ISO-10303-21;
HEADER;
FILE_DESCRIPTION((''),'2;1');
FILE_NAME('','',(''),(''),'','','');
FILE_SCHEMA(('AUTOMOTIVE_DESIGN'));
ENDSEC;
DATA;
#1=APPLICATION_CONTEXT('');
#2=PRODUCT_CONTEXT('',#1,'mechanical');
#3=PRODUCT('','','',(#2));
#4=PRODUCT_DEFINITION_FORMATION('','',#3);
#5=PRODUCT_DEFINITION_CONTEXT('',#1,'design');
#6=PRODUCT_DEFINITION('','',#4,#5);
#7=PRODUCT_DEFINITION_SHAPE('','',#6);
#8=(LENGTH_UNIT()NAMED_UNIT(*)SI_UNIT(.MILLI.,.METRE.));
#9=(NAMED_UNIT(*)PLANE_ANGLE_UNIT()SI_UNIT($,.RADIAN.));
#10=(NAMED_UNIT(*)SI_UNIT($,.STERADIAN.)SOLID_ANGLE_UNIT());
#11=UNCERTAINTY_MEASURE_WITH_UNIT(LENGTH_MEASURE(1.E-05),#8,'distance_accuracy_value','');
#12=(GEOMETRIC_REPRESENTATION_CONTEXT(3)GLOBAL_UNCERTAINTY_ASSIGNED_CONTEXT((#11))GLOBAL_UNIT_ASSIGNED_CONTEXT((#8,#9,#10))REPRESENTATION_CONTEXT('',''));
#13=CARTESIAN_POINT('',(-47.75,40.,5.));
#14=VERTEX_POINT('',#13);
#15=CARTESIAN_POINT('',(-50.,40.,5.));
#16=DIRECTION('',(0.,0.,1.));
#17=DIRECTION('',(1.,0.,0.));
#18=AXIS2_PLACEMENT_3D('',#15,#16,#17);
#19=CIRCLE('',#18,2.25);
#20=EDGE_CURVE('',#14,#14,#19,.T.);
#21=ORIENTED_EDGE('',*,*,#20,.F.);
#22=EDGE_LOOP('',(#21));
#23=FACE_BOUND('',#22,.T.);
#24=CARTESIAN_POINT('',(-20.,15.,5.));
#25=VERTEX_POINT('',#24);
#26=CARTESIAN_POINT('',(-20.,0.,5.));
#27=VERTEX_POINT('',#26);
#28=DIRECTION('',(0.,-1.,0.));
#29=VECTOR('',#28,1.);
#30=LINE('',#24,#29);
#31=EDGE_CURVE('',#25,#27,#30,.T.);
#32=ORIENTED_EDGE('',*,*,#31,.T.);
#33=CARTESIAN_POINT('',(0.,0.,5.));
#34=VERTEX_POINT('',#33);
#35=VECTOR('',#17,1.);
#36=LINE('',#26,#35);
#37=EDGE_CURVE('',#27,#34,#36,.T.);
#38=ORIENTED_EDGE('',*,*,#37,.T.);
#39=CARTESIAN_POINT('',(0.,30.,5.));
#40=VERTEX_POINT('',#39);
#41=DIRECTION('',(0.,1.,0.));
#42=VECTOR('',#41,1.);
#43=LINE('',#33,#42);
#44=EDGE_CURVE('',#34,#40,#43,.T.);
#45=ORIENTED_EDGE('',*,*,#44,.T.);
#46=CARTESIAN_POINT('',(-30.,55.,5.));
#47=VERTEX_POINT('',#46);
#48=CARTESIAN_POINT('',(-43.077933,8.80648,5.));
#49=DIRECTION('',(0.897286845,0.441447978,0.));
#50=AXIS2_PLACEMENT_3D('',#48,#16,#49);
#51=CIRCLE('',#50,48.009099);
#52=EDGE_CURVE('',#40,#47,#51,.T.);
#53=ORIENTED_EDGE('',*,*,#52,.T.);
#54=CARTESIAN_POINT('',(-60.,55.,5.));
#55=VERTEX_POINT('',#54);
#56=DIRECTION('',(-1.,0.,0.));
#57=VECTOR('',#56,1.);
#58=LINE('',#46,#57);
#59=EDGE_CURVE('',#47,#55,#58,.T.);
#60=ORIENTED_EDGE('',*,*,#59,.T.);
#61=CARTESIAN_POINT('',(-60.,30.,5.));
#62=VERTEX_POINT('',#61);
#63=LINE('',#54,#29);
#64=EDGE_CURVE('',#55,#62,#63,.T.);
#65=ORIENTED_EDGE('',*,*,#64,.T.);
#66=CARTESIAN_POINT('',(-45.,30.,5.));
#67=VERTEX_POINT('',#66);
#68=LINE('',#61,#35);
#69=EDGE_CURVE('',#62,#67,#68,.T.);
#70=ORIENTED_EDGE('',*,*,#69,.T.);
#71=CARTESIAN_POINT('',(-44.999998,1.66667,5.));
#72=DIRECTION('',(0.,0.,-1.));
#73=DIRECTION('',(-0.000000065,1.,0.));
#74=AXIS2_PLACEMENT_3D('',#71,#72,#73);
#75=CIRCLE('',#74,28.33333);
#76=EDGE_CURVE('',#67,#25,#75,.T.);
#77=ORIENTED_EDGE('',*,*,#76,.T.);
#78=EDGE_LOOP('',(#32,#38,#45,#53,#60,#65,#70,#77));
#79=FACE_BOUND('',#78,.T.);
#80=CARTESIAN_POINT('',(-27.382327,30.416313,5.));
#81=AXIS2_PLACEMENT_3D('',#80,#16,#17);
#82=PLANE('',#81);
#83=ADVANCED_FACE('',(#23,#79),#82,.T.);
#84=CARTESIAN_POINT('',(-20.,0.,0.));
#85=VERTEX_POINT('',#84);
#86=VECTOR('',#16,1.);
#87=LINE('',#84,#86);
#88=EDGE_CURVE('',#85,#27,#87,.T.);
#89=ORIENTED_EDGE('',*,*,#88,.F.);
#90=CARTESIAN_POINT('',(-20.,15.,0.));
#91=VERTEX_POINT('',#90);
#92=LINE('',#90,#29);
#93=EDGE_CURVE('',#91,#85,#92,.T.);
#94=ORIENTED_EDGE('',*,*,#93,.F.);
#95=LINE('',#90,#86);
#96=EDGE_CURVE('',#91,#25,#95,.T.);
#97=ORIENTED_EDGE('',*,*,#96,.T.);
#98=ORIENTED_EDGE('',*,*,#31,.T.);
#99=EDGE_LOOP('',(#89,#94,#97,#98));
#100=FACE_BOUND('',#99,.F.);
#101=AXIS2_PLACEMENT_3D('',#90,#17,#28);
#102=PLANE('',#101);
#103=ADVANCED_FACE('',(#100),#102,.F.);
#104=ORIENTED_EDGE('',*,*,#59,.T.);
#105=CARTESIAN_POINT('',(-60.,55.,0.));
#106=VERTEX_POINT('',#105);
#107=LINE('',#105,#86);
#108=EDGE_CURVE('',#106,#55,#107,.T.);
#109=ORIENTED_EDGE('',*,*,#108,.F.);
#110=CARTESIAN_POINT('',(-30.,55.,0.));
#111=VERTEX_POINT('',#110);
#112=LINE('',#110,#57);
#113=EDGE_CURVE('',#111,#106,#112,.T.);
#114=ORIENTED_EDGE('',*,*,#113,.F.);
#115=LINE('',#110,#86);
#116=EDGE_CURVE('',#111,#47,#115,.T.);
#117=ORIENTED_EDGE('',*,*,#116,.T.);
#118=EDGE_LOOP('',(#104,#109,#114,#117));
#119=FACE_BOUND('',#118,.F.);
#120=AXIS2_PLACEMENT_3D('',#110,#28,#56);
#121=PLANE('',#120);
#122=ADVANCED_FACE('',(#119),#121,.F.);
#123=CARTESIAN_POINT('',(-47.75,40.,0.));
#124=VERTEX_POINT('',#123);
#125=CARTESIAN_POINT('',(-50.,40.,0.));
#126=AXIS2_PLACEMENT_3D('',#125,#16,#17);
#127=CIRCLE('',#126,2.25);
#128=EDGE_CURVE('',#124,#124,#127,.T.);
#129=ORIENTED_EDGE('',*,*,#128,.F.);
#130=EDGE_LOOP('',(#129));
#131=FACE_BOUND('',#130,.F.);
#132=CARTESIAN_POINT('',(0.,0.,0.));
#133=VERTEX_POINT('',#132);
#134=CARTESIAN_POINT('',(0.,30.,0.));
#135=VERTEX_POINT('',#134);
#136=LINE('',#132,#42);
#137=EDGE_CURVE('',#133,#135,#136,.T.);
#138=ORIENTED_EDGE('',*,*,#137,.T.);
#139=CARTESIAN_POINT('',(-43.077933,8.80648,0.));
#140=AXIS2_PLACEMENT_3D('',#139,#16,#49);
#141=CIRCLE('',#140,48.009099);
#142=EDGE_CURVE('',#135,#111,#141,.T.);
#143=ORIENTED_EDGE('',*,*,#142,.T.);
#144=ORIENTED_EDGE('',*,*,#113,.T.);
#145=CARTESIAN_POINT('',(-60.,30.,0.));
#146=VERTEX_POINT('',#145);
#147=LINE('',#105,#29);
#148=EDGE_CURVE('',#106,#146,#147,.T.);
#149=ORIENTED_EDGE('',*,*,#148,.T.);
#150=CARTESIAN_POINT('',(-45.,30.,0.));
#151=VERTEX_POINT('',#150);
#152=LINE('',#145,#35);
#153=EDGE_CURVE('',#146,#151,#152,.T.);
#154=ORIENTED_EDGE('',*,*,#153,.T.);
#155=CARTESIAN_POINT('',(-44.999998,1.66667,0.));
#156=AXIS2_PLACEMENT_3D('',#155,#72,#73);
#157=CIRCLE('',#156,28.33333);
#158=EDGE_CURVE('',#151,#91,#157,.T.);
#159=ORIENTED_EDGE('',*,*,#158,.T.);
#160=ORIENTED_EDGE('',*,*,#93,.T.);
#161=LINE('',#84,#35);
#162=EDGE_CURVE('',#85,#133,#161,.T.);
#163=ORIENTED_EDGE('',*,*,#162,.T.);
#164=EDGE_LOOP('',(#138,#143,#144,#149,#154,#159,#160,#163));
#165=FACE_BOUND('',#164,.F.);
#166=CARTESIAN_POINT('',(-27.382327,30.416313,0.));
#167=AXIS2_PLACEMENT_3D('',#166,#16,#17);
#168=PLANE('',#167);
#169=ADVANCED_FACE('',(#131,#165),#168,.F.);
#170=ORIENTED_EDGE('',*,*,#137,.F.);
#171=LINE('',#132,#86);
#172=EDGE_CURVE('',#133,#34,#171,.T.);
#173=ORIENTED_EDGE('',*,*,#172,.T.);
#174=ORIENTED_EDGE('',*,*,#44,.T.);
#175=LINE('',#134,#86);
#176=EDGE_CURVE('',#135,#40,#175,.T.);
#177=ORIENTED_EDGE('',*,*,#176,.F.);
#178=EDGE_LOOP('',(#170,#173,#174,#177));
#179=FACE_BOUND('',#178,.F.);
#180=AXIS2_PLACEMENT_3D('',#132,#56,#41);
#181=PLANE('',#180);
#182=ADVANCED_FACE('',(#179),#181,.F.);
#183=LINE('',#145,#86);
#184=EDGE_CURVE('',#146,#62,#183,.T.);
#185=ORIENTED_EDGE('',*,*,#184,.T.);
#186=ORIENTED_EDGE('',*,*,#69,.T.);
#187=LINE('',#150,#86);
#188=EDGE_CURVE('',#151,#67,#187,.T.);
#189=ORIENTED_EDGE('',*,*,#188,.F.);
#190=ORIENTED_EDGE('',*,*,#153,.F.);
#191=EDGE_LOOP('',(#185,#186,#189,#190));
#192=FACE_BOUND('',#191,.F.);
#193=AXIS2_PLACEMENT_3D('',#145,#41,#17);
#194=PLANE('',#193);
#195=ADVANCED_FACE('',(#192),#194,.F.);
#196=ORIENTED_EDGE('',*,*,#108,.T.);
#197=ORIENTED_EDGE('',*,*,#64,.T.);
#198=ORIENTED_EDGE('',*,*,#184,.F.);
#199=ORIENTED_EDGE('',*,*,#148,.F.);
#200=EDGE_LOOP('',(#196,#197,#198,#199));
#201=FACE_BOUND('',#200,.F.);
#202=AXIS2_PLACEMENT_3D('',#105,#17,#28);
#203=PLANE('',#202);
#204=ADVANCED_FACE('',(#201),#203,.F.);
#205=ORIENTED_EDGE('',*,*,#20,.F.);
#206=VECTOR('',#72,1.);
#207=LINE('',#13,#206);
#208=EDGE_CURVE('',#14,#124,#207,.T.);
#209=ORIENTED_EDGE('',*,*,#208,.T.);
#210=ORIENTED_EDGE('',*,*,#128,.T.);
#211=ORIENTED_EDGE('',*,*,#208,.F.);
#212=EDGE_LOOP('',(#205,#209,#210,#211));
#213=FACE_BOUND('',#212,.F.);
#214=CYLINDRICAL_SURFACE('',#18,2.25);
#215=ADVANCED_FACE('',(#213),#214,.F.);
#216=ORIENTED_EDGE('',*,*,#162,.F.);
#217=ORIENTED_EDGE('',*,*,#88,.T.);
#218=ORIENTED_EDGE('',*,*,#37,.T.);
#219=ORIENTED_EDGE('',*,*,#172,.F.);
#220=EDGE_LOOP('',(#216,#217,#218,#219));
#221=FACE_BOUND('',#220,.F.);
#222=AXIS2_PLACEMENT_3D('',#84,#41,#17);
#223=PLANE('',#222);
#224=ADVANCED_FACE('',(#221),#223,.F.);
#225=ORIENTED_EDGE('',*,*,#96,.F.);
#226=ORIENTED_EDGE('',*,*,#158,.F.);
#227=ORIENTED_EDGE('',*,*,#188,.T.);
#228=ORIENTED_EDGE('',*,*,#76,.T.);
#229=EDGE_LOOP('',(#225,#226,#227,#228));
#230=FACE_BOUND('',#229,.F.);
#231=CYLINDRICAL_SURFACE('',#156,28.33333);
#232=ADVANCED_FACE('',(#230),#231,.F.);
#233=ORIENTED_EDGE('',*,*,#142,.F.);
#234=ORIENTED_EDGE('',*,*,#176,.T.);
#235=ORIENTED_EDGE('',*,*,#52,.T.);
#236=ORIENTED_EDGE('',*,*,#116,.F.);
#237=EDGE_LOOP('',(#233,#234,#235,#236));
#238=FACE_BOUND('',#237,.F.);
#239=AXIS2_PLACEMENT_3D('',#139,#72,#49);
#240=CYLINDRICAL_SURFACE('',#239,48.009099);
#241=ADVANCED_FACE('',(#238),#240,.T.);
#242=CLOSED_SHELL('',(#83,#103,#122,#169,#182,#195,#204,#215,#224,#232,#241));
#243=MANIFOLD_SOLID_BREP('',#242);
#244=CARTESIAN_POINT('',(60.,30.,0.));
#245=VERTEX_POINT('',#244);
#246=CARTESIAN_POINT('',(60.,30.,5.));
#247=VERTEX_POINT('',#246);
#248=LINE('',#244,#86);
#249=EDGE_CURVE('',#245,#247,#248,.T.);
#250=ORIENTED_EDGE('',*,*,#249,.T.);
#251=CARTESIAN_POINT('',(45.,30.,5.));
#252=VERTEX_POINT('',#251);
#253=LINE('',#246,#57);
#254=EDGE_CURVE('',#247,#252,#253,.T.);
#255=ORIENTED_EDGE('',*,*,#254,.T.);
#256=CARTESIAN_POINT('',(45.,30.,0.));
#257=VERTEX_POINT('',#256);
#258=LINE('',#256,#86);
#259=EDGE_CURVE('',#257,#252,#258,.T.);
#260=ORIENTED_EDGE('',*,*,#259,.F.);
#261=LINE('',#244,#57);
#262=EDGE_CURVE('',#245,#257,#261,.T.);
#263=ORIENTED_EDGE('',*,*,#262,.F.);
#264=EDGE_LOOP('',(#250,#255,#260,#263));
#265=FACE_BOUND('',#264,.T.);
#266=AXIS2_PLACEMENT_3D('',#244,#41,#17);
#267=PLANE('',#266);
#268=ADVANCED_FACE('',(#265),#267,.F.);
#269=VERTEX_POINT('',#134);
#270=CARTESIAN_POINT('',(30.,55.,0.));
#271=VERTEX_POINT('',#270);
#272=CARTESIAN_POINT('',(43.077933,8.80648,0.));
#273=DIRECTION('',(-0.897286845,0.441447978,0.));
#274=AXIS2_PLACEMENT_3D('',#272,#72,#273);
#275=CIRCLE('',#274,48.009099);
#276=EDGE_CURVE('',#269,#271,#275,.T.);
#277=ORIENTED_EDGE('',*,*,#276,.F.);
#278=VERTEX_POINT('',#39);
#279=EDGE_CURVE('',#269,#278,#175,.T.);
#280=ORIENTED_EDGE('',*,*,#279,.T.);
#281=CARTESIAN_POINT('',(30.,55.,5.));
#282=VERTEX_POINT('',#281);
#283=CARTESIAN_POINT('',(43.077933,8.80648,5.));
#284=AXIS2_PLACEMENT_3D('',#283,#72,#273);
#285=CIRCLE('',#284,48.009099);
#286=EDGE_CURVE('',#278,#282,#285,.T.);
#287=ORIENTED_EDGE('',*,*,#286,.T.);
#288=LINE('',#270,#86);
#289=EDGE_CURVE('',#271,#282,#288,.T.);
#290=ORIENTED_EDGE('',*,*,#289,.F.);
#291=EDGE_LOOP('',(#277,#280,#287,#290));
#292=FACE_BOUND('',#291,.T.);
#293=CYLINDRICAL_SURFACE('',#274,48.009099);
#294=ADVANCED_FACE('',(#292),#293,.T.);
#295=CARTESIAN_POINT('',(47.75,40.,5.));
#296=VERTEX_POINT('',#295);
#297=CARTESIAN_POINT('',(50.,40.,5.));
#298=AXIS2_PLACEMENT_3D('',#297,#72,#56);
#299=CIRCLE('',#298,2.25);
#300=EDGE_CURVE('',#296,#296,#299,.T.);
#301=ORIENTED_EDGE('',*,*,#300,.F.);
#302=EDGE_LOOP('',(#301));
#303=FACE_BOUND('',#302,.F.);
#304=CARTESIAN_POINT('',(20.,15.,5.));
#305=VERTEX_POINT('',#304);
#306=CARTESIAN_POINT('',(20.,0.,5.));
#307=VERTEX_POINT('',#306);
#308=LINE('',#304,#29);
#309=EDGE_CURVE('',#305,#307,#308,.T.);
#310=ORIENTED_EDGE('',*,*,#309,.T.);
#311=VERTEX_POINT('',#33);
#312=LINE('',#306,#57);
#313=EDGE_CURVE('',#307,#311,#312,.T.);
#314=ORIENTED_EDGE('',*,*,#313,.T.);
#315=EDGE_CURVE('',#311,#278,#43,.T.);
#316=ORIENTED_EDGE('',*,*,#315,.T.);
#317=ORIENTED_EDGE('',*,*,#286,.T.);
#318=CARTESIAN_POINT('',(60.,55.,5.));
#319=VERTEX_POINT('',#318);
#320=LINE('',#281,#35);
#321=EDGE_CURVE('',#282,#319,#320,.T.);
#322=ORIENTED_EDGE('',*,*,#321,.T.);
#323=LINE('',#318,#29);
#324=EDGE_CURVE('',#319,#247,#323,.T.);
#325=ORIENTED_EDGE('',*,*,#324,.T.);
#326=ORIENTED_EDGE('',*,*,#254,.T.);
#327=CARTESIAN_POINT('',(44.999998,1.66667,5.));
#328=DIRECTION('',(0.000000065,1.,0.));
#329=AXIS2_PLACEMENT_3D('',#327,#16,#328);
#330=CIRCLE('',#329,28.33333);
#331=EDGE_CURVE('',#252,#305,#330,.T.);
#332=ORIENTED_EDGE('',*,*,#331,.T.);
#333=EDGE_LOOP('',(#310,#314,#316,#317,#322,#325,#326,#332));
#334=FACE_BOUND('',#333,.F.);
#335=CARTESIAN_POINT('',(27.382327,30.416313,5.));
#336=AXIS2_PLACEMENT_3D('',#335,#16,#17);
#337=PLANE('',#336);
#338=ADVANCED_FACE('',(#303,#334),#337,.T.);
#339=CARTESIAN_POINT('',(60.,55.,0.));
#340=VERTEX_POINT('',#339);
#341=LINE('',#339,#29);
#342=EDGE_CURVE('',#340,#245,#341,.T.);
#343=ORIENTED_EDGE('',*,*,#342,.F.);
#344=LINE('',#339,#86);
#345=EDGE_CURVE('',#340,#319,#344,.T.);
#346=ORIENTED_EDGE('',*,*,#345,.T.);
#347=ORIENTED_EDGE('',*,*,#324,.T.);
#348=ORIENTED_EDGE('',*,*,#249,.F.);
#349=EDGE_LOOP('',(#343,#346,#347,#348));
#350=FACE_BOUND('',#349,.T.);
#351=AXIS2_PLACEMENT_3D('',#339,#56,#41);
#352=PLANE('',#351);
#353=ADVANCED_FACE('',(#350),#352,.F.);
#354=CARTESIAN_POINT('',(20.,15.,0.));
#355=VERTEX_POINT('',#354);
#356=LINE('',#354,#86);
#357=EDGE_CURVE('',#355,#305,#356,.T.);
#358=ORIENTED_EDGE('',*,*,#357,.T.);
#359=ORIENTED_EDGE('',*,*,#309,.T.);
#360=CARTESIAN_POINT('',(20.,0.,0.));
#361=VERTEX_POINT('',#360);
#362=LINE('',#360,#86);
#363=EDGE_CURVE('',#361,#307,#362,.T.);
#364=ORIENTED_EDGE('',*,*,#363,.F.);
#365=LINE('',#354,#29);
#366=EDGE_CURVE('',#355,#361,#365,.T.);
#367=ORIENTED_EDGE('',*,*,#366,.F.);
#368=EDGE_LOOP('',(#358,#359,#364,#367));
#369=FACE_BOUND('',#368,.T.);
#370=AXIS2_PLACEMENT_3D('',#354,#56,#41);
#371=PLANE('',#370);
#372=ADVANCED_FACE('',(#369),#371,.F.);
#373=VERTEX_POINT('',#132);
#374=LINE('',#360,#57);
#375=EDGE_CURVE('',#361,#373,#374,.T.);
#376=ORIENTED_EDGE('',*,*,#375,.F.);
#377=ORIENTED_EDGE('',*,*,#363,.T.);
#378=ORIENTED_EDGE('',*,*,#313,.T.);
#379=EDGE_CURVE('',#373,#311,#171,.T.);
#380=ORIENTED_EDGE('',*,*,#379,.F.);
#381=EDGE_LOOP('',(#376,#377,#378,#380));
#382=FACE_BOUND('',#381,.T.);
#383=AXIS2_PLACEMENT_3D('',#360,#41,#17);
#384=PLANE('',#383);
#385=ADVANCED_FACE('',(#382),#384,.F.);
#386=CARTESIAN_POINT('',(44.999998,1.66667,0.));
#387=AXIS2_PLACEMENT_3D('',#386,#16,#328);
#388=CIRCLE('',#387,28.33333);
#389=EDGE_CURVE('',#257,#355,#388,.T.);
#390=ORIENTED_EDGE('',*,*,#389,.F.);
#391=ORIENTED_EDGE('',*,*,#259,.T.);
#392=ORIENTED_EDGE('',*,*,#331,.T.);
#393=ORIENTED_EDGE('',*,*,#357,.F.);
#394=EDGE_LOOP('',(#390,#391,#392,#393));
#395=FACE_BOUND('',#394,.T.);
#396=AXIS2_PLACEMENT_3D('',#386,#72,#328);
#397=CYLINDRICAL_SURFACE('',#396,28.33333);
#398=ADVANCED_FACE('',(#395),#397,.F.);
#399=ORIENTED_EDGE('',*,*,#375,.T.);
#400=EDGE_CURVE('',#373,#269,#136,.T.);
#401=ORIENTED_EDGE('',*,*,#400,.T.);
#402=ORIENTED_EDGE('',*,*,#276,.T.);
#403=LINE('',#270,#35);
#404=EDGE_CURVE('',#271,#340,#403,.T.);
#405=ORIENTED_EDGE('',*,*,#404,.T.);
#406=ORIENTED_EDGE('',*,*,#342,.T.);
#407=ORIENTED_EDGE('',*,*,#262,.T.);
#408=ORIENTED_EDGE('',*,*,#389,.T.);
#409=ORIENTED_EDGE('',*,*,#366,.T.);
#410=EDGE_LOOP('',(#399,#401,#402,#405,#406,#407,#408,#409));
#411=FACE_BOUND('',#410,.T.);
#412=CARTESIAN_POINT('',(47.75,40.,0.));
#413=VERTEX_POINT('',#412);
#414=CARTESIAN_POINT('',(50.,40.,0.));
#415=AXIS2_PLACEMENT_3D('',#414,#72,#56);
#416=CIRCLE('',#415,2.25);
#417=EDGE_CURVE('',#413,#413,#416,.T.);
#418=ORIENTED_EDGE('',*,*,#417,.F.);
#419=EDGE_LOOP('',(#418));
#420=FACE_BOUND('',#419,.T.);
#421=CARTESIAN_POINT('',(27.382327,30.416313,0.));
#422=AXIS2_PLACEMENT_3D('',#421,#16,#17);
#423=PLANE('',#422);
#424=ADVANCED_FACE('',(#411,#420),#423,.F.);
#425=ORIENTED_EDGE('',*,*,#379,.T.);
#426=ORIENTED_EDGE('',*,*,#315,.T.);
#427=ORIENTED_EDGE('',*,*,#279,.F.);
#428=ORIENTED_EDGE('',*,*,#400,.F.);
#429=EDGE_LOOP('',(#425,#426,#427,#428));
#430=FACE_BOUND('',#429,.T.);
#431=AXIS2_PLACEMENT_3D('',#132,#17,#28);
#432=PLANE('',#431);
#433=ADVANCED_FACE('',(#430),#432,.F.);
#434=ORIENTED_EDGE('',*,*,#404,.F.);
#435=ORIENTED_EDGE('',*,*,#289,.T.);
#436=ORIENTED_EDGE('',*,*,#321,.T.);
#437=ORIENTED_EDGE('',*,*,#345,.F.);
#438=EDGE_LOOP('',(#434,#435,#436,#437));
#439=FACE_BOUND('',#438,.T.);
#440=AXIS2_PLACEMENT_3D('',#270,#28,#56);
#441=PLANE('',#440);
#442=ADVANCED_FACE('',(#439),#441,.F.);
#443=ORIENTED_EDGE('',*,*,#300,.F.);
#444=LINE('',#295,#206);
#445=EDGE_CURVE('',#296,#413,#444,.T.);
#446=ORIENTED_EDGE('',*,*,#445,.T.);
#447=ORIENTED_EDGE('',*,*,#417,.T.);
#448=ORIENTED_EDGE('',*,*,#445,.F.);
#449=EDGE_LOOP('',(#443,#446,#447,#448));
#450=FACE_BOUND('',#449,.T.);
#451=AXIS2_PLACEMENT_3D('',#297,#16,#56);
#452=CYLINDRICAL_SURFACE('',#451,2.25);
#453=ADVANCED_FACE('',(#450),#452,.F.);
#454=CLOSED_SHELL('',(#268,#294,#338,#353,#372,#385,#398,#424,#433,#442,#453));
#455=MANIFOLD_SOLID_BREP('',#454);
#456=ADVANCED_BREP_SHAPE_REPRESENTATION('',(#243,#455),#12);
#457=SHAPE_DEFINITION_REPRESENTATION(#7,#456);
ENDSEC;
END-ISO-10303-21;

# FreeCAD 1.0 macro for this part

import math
import FreeCAD as App
import Part
import Sketcher
from FreeCAD import Vector
Q = App.Units.Quantity

doc = App.newDocument("Part")
params = doc.addObject("Spreadsheet::Sheet", "Params")
for row, (alias, value) in enumerate([
    ("sketch1_width", "20 mm"),
    ("sketch1_width2", "30 mm"),
    ("sketch1_width3", "15 mm"),
    ("sketch1_height", "25 mm"),
    ("pad1_length", "5 mm"),
    ("sketch2_diameter", "4.5 mm"),
], start=1):
    params.set(f"A{row}", alias)
    params.set(f"B{row}", "=" + value)
    params.setAlias(f"B{row}", alias)

body = doc.addObject("PartDesign::Body", "Body")

# Sketch on XY plane
sketch1 = body.newObject("Sketcher::SketchObject", "Sketch")
sketch1.AttachmentSupport = (doc.getObject("XY_Plane"), [""])
sketch1.MapMode = "FlatFace"
sketch1.addGeometry(Part.LineSegment(Vector(-20, 0, 0), Vector(0, 0, 0)), False)
sketch1.addGeometry(Part.LineSegment(Vector(0, 0, 0), Vector(0, 30, 0)), False)
sketch1.addGeometry(Part.ArcOfCircle(Part.Circle(Vector(-43.077933, 8.80648, 0), Vector(0, 0, 1), 48.009099), math.radians(26.196304), math.radians(74.192553)), False)
sketch1.addGeometry(Part.LineSegment(Vector(-30, 55, 0), Vector(-60, 55, 0)), False)
sketch1.addGeometry(Part.LineSegment(Vector(-60, 55, 0), Vector(-60, 30, 0)), False)
sketch1.addGeometry(Part.LineSegment(Vector(-60, 30, 0), Vector(-45, 30, 0)), False)
sketch1.addGeometry(Part.ArcOfCircle(Part.Circle(Vector(-44.999998, 1.66667, 0), Vector(0, 0, 1), 28.33333), math.radians(28.072483), math.radians(90.000004)), False)
sketch1.addGeometry(Part.LineSegment(Vector(-20, 15, 0), Vector(-20, 0, 0)), False)
sketch1.addConstraint(Sketcher.Constraint("Coincident", 0, 2, 1, 1))
sketch1.addConstraint(Sketcher.Constraint("Coincident", 1, 2, 2, 1))
sketch1.addConstraint(Sketcher.Constraint("Coincident", 2, 2, 3, 1))
sketch1.addConstraint(Sketcher.Constraint("Coincident", 3, 2, 4, 1))
sketch1.addConstraint(Sketcher.Constraint("Coincident", 4, 2, 5, 1))
sketch1.addConstraint(Sketcher.Constraint("Tangent", 5, 2, 6, 2))
sketch1.addConstraint(Sketcher.Constraint("Coincident", 6, 1, 7, 1))
sketch1.addConstraint(Sketcher.Constraint("Coincident", 7, 2, 0, 1))
sketch1.addConstraint(Sketcher.Constraint("Horizontal", 0))
sketch1.addConstraint(Sketcher.Constraint("Vertical", 1))
sketch1.addConstraint(Sketcher.Constraint("Horizontal", 3))
sketch1.addConstraint(Sketcher.Constraint("Vertical", 4))
sketch1.addConstraint(Sketcher.Constraint("Horizontal", 5))
sketch1.addConstraint(Sketcher.Constraint("Vertical", 7))
sketch1.addConstraint(Sketcher.Constraint("Coincident", 0, 2, -1, 1))
sketch1.addConstraint(Sketcher.Constraint("Horizontal", 1, 2, 4, 2))
sketch1.addConstraint(Sketcher.Constraint("Equal", 3, 1))
sketch1.addConstraint(Sketcher.Constraint("Equal", 5, 7))
sketch1.addConstraint(Sketcher.Constraint("DistanceX", 0, 1, 0, 2, Q("20 mm")))
sketch1.addConstraint(Sketcher.Constraint("DistanceX", 3, 2, 3, 1, Q("30 mm")))
sketch1.addConstraint(Sketcher.Constraint("DistanceX", 5, 1, 5, 2, Q("15 mm")))
sketch1.addConstraint(Sketcher.Constraint("DistanceY", 4, 2, 4, 1, Q("25 mm")))
sketch1.addConstraint(Sketcher.Constraint("DistanceX", 6, 3, -1, 1, Q("44.999998 mm")))
sketch1.addConstraint(Sketcher.Constraint("Radius", 2, Q("48.009099 mm")))
sketch1.setExpression("Constraints[18]", "Params.sketch1_width")
sketch1.setExpression("Constraints[19]", "Params.sketch1_width2")
sketch1.setExpression("Constraints[20]", "Params.sketch1_width3")
sketch1.setExpression("Constraints[21]", "Params.sketch1_height")
pad1 = body.newObject("PartDesign::Pad", "Pad")
pad1.Profile = sketch1
pad1.setExpression("Length", "Params.pad1_length")

# Sketch on XY plane
sketch2 = body.newObject("Sketcher::SketchObject", "Sketch001")
sketch2.AttachmentSupport = (doc.getObject("XY_Plane"), [""])
sketch2.MapMode = "FlatFace"
sketch2.AttachmentOffset = App.Placement(Vector(0, 0, 5), App.Rotation())
sketch2.addGeometry(Part.Circle(Vector(-50, 40, 0), Vector(0, 0, 1), 2.25), False)
sketch2.addConstraint(Sketcher.Constraint("Diameter", 0, Q("4.5 mm")))
sketch2.addConstraint(Sketcher.Constraint("DistanceX", 0, 3, -1, 1, Q("50 mm")))
sketch2.addConstraint(Sketcher.Constraint("DistanceY", -1, 1, 0, 3, Q("40 mm")))
sketch2.setExpression("Constraints[0]", "Params.sketch2_diameter")
pocket1 = body.newObject("PartDesign::Pocket", "Pocket")
pocket1.Profile = sketch2
pocket1.Type = "ThroughAll"
body2 = doc.addObject("PartDesign::Body", "Body001")
doc.recompute()

mirroring = doc.addObject("Part::Mirroring", "Mirroring")
mirroring.Source = body
mirroring.Base = Vector(0, 0, 0)
mirroring.Normal = Vector(1, 0, 0)
body2.BaseFeature = mirroring
doc.recompute()
mirroring.Visibility = False

doc.recompute()
